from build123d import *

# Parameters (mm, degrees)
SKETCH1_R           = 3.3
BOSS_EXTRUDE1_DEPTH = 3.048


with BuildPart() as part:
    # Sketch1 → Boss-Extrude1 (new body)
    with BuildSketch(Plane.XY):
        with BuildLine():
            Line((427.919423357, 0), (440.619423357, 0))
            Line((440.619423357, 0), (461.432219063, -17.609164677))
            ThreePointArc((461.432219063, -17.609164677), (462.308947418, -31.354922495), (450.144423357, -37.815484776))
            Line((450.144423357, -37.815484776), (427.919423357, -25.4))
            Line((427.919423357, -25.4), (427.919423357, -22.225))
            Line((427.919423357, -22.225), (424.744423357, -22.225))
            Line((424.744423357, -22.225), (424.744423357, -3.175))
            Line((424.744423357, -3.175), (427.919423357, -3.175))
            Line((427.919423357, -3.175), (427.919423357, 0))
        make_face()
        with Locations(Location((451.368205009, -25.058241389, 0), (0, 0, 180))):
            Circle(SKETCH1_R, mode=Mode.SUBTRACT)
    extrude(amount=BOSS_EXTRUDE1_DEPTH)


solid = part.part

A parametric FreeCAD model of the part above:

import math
import FreeCAD as App
import Part
import Sketcher

V = App.Vector
Q = App.Units.Quantity

doc = App.newDocument("Part")
params = doc.addObject("Spreadsheet::Sheet", "Params")
for row, (alias, value) in enumerate([
    ("sketch1_radius", "0.5 in"),
    ("sketch1_width", "0.5 in"),
    ("sketch1_height", "0.75 in"),
    ("pad1_length", "0.12 in"),
], start=1):
    params.set(f"A{row}", alias)
    params.set(f"B{row}", "=" + value)
    params.setAlias(f"B{row}", alias)

body = doc.addObject("PartDesign::Body", "Body")

sketch1 = body.newObject("Sketcher::SketchObject", "Sketch")
sketch1.AttachmentSupport = (doc.getObject("XY_Plane"), [""])
sketch1.MapMode = "FlatFace"
sketch1.addGeometry([
    Part.LineSegment(V(440.6, 0, 0), V(427.9, 0, 0)),
    Part.LineSegment(V(427.9, 0, 0), V(427.9, -3.2, 0)),
    Part.LineSegment(V(427.9, -3.2, 0), V(424.7, -3.2, 0)),
    Part.LineSegment(V(424.7, -3.2, 0), V(424.7, -22.2, 0)),
    Part.LineSegment(V(424.7, -22.2, 0), V(427.9, -22.2, 0)),
    Part.LineSegment(V(427.9, -22.2, 0), V(427.9, -25.4, 0)),
    Part.LineSegment(V(427.9, -25.4, 0), V(450.1, -37.8, 0)),
    Part.ArcOfCircle(Part.Circle(V(451.2, -25.2, 0), V(0, 0, 1), 12.7), math.radians(-95), math.radians(36)),
    Part.LineSegment(V(461.4, -17.6, 0), V(440.6, 0, 0)),
    Part.Circle(V(451.4, -25.1, 0), V(0, 0, 1), 3.3),
], False)
sketch1.addConstraint([
    Sketcher.Constraint("Coincident", 0, 2, 1, 1),
    Sketcher.Constraint("Coincident", 1, 2, 2, 1),
    Sketcher.Constraint("Coincident", 2, 2, 3, 1),
    Sketcher.Constraint("Coincident", 3, 2, 4, 1),
    Sketcher.Constraint("Coincident", 4, 2, 5, 1),
    Sketcher.Constraint("Coincident", 5, 2, 6, 1),
    Sketcher.Constraint("Coincident", 6, 2, 7, 1),
    Sketcher.Constraint("Coincident", 7, 2, 8, 1),
    Sketcher.Constraint("Coincident", 8, 2, 0, 1),
    Sketcher.Constraint("Horizontal", 0),
    Sketcher.Constraint("Vertical", 1),
    Sketcher.Constraint("Horizontal", 2),
    Sketcher.Constraint("Vertical", 3),
    Sketcher.Constraint("Horizontal", 4),
    Sketcher.Constraint("Vertical", 5),
    Sketcher.Constraint("PointOnObject", 0, 2, -1),
    Sketcher.Constraint("Vertical", 1, 2, 4, 2),
    Sketcher.Constraint("Equal", 4, 1),
    Sketcher.Constraint("Equal", 1, 5),
    Sketcher.Constraint("Radius", 7, Q("0.5 in")),
    Sketcher.Constraint("DistanceX", 0, 2, 0, 1, Q("0.5 in")),
    Sketcher.Constraint("DistanceY", 5, 2, -1, 1, Q("1 in")),
    Sketcher.Constraint("DistanceX", 3, 2, 6, 2, Q("1 in")),
    Sketcher.Constraint("DistanceY", 3, 2, 3, 1, Q("0.75 in")),
    Sketcher.Constraint("Diameter", 9, Q("6.6 mm")),
    Sketcher.Constraint("DistanceY", 7, 3, -1, 1, Q("25.161252 mm")),
    Sketcher.Constraint("DistanceY", 9, 3, -1, 1, Q("25.058241 mm")),
    Sketcher.Constraint("DistanceX", -1, 1, 7, 2, Q("461.432219 mm")),
    Sketcher.Constraint("DistanceX", 0, 2, 9, 3, Q("23.448782 mm")),
    Sketcher.Constraint("DistanceX", 7, 3, 7, 2, Q("10.210582 mm")),
    Sketcher.Constraint("DistanceY", 6, 2, 7, 2, Q("20.20632 mm")),
])
sketch1.setExpression("Constraints[19]", "Params.sketch1_radius")
sketch1.setExpression("Constraints[20]", "Params.sketch1_width")
sketch1.setExpression("Constraints[23]", "Params.sketch1_height")
pad1 = body.newObject("PartDesign::Pad", "Pad")
pad1.Profile = sketch1
pad1.setExpression("Length", "Params.pad1_length")

doc.recompute()
